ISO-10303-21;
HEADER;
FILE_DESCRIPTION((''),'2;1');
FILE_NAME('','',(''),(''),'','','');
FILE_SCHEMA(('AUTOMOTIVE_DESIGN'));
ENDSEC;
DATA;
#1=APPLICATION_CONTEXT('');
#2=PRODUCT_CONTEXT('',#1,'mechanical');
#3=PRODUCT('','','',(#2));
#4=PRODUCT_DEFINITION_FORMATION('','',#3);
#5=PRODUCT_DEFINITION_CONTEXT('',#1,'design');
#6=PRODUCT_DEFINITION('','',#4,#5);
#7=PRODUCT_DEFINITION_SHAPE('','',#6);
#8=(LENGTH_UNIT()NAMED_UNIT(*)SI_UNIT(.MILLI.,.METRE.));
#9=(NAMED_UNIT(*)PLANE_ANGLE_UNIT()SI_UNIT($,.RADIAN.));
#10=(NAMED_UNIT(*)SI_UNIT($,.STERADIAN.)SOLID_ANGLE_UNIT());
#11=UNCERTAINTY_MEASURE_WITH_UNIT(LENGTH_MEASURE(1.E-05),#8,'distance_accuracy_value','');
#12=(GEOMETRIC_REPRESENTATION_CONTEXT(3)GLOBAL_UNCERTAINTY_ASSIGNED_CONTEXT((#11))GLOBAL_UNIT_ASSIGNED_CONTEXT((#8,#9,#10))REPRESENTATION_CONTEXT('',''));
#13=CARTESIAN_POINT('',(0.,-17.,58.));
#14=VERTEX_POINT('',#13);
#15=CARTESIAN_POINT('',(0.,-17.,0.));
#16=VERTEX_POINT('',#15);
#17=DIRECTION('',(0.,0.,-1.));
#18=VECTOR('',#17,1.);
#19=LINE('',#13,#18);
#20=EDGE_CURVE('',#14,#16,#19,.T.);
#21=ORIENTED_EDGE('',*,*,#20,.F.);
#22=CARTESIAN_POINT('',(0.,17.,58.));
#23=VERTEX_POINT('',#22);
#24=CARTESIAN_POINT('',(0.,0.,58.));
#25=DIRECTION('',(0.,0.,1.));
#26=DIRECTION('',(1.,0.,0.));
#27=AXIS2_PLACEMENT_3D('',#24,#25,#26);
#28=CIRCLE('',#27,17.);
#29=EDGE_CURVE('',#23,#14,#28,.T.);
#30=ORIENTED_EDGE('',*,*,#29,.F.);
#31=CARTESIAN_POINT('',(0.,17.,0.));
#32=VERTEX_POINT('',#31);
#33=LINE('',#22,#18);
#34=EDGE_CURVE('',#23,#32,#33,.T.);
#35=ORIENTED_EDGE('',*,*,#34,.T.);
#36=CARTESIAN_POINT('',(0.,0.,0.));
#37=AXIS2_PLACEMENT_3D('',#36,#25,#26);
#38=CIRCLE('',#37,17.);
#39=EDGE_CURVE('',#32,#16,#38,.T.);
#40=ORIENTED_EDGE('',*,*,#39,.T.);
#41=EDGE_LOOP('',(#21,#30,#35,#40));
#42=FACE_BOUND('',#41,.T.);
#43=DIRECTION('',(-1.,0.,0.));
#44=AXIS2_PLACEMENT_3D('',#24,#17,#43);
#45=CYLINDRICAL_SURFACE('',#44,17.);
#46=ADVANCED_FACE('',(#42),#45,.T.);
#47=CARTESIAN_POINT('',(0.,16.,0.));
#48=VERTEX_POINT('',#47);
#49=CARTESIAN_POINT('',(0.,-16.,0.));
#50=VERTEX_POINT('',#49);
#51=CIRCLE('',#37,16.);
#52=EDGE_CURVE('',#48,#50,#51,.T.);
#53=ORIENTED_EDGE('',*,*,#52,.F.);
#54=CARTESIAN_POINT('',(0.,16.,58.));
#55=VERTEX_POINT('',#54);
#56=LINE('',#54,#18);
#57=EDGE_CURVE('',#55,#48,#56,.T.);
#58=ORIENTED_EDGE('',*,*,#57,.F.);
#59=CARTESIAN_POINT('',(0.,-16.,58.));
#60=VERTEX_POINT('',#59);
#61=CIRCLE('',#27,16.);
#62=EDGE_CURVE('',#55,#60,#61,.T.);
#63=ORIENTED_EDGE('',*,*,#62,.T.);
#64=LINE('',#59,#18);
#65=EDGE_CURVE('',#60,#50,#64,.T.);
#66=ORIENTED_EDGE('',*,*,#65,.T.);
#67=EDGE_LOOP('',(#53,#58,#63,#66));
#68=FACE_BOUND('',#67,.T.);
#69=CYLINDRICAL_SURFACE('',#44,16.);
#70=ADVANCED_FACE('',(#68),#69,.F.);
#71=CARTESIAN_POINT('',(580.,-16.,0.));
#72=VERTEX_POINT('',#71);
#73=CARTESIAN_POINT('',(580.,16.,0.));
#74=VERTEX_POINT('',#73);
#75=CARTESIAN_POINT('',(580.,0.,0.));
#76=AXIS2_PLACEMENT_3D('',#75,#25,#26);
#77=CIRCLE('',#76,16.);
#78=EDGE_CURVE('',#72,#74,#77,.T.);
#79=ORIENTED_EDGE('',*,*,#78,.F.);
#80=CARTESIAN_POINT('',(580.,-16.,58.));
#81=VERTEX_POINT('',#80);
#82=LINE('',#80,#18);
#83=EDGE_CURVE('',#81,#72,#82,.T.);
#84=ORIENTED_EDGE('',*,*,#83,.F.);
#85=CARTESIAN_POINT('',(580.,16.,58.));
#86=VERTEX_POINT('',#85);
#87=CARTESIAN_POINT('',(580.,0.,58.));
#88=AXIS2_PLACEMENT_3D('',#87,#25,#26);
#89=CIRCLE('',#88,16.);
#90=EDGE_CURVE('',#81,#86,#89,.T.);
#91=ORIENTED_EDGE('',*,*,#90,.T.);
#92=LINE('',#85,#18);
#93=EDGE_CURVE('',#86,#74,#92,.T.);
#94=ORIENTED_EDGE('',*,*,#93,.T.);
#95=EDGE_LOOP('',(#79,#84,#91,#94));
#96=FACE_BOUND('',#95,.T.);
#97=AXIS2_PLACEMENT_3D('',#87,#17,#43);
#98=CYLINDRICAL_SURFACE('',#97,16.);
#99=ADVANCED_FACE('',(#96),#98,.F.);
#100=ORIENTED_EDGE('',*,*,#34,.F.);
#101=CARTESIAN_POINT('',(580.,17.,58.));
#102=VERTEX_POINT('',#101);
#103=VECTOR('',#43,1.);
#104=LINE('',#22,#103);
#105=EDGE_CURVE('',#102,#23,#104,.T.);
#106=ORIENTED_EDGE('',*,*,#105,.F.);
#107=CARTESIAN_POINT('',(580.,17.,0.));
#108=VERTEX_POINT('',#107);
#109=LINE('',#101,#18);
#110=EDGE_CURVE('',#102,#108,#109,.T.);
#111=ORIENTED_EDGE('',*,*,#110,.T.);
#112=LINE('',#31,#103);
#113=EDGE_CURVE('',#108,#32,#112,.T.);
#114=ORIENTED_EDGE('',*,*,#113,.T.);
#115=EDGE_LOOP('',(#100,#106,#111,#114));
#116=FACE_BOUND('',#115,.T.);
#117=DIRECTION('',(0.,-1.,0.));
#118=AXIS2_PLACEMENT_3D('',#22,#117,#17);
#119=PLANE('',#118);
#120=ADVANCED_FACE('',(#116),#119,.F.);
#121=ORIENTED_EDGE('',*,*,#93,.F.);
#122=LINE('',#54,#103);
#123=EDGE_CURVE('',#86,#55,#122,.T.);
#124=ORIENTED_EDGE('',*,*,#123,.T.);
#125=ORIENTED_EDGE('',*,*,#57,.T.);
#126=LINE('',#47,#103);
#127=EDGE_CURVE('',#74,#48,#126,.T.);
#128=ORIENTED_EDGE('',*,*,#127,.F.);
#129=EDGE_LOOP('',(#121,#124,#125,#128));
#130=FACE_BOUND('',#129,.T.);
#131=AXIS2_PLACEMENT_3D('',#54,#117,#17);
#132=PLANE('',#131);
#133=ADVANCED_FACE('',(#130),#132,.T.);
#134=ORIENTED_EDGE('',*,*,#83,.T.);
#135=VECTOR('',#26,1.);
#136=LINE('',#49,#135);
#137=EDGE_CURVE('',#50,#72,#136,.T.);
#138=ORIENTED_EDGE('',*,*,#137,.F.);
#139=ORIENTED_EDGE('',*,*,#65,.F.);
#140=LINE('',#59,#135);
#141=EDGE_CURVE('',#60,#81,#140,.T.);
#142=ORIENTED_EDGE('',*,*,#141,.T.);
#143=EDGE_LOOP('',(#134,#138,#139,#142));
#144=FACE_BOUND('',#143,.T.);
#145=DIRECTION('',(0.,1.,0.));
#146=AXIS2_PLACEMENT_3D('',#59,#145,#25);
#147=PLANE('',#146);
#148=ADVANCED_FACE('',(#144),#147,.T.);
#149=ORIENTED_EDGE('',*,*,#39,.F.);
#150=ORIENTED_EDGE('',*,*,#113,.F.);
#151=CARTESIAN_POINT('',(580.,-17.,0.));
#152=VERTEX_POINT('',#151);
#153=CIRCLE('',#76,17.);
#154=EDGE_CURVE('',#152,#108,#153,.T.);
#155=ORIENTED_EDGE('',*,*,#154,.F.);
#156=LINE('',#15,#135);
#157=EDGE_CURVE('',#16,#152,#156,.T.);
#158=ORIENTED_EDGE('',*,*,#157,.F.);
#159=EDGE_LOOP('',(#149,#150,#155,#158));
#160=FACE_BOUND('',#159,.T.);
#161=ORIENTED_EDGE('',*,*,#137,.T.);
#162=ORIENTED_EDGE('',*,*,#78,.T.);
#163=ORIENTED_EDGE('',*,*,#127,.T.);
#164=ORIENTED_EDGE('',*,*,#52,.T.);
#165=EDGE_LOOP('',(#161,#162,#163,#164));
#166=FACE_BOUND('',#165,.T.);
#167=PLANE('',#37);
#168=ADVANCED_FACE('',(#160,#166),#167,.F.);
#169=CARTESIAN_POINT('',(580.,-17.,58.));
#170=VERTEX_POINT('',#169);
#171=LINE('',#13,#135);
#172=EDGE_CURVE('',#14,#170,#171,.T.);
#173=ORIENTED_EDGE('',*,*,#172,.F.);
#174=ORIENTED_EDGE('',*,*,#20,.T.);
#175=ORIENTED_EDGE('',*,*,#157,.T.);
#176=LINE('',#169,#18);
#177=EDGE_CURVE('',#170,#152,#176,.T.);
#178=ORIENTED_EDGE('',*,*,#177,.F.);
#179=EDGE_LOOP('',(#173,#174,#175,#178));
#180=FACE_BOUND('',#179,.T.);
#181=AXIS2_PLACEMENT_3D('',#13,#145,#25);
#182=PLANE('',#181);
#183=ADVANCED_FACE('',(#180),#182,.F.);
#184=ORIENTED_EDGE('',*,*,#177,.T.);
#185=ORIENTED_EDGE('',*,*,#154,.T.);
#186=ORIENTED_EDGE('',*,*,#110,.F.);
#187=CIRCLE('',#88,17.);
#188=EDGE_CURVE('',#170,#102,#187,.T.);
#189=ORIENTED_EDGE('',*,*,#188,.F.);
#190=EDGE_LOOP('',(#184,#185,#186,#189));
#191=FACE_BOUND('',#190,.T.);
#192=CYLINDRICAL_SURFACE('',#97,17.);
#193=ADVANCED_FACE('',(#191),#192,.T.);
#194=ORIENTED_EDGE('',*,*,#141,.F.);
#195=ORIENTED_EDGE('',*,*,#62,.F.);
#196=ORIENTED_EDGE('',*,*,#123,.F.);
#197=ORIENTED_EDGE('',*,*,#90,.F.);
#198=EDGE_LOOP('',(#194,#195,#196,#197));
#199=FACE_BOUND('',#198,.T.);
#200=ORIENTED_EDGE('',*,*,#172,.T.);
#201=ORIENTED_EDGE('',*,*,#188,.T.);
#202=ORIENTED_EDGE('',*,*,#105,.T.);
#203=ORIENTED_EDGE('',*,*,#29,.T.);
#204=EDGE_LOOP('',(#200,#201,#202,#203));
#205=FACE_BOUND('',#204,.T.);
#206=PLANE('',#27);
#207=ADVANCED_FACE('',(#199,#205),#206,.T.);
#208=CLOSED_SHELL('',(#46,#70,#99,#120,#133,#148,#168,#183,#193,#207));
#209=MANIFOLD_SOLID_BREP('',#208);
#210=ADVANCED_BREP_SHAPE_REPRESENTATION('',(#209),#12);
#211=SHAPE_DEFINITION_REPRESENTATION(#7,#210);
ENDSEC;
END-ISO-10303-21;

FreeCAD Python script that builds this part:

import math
import FreeCAD as App
import Part
import Sketcher

V = App.Vector

doc = App.newDocument("Part")
body = doc.addObject("PartDesign::Body", "Body")

# Sketch on XY plane
sketch1 = body.newObject("Sketcher::SketchObject", "Sketch")
sketch1.AttachmentSupport = (doc.getObject("XY_Plane"), [""])
sketch1.MapMode = "FlatFace"
sketch1.addGeometry(Part.LineSegment(V(580, 17, 0), V(0, 17, 0)), False)
sketch1.addGeometry(Part.ArcOfCircle(Part.Circle(V(0, 0, 0), V(0, 0, 1), 17), math.radians(90), math.radians(270)), False)
sketch1.addGeometry(Part.LineSegment(V(0, -17, 0), V(580, -17, 0)), False)
sketch1.addGeometry(Part.ArcOfCircle(Part.Circle(V(580, 0, 0), V(0, 0, 1), 17), math.radians(-90), math.radians(90)), False)
sketch1.addGeometry(Part.LineSegment(V(0, 16, 0), V(580, 16, 0)), False)
sketch1.addGeometry(Part.ArcOfCircle(Part.Circle(V(580, 0, 0), V(0, 0, 1), 16), math.radians(-90), math.radians(90)), False)
sketch1.addGeometry(Part.LineSegment(V(580, -16, 0), V(0, -16, 0)), False)
sketch1.addGeometry(Part.ArcOfCircle(Part.Circle(V(0, 0, 0), V(0, 0, 1), 16), math.radians(90), math.radians(270)), False)
sketch1.addConstraint(Sketcher.Constraint("Tangent", 0, 2, 1, 1))
sketch1.addConstraint(Sketcher.Constraint("Tangent", 1, 2, 2, 1))
sketch1.addConstraint(Sketcher.Constraint("Tangent", 2, 2, 3, 1))
sketch1.addConstraint(Sketcher.Constraint("Tangent", 3, 2, 0, 1))
sketch1.addConstraint(Sketcher.Constraint("Tangent", 4, 2, 5, 2))
sketch1.addConstraint(Sketcher.Constraint("Tangent", 5, 1, 6, 1))
sketch1.addConstraint(Sketcher.Constraint("Tangent", 6, 2, 7, 2))
sketch1.addConstraint(Sketcher.Constraint("Tangent", 7, 1, 4, 1))
sketch1.addConstraint(Sketcher.Constraint("Horizontal", 0))
sketch1.addConstraint(Sketcher.Constraint("Horizontal", 2))
sketch1.addConstraint(Sketcher.Constraint("Horizontal", 4))
sketch1.addConstraint(Sketcher.Constraint("Horizontal", 6))
sketch1.addConstraint(Sketcher.Constraint("Coincident", 1, 3, -1, 1))
sketch1.addConstraint(Sketcher.Constraint("Coincident", 7, 3, -1, 1))
sketch1.addConstraint(Sketcher.Constraint("Vertical", 5, 3, 2, 2))
sketch1.addConstraint(Sketcher.Constraint("Radius", 1, 17.0))
sketch1.addConstraint(Sketcher.Constraint("Radius", 5, 16.0))
sketch1.addConstraint(Sketcher.Constraint("DistanceX", 0, 2, 0, 1, 580.0))
pad1 = body.newObject("PartDesign::Pad", "Pad")
pad1.Profile = sketch1
pad1.Length = 58

doc.recompute()
